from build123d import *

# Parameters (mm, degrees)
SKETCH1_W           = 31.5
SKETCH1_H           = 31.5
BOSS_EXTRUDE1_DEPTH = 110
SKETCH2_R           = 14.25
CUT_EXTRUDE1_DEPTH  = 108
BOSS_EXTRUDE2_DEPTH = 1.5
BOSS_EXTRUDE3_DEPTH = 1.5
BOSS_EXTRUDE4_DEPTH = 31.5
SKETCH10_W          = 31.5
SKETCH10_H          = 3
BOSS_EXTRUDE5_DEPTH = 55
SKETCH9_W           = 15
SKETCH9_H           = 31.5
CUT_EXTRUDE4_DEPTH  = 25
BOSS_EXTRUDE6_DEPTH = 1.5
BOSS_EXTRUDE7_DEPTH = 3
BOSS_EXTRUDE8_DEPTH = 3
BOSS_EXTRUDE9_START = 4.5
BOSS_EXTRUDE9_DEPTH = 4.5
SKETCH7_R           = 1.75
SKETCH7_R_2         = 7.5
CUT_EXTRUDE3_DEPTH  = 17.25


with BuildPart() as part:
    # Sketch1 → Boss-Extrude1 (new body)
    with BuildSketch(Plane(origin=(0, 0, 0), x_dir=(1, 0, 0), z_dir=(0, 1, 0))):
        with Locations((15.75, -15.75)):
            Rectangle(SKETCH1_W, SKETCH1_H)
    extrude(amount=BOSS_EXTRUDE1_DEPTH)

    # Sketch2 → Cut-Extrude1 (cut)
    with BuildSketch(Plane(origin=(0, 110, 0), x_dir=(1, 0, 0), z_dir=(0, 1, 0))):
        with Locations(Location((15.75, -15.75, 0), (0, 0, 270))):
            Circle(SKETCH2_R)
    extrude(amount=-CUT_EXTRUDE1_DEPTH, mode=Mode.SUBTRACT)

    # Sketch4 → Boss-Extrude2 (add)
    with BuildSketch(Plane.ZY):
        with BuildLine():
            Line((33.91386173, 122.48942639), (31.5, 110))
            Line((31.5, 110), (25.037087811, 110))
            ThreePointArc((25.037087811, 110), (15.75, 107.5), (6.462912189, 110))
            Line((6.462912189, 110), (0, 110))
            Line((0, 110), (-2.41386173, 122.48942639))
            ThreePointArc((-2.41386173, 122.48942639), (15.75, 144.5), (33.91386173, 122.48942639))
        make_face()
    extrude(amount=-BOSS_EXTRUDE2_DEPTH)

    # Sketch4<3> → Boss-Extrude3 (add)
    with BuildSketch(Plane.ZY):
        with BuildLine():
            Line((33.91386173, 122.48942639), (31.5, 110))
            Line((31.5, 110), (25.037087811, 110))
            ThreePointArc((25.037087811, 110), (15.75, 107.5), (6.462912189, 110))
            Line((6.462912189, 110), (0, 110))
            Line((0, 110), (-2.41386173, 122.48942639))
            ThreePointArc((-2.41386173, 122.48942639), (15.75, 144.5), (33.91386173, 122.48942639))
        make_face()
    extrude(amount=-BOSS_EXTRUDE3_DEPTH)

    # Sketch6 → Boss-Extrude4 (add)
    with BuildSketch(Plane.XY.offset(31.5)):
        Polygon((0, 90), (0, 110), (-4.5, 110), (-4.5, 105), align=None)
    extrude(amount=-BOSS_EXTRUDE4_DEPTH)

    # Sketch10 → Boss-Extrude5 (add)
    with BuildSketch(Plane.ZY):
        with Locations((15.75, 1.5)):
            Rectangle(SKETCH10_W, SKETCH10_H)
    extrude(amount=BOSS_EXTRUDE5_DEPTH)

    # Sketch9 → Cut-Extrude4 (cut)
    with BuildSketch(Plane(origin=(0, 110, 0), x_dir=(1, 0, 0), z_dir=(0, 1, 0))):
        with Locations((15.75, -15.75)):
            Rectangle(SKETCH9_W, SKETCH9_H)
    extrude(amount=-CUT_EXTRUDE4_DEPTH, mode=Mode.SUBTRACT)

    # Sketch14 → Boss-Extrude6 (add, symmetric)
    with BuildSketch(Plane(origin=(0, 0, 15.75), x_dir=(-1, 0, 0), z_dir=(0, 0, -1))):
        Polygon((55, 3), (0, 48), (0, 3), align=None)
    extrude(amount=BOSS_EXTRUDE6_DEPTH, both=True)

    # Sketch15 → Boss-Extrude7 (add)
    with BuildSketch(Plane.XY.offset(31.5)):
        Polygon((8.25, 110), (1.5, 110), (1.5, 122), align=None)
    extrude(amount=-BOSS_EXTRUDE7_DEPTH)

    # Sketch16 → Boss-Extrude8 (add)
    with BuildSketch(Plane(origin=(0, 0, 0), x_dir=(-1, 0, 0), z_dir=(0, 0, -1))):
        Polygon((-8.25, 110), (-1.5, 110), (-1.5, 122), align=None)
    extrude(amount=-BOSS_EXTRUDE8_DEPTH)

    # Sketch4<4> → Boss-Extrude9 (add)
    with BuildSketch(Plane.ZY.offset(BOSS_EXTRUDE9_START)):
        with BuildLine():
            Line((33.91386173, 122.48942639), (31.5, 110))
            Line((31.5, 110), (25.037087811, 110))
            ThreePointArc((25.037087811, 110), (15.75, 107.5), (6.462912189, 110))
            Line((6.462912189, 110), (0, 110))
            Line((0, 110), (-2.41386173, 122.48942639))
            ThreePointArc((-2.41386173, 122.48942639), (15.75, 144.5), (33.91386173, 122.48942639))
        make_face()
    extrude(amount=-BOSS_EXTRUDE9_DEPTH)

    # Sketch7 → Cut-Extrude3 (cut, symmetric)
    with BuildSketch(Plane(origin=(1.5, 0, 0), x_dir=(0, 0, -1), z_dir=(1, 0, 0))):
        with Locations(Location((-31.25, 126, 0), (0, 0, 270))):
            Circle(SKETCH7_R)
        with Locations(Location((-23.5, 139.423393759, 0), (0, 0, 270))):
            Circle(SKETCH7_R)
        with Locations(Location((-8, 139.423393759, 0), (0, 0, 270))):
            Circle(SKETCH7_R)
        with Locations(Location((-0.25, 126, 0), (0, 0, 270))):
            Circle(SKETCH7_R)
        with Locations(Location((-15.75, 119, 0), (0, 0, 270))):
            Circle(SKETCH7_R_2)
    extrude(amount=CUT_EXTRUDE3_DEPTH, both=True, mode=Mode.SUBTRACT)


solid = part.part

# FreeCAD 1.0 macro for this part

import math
import FreeCAD as App
import Part
import Sketcher
from FreeCAD import Vector
Q = App.Units.Quantity

doc = App.newDocument("Part")
params = doc.addObject("Spreadsheet::Sheet", "Params")
for row, (alias, value) in enumerate([
    ("sketch1_width", "31.5 mm"),
    ("pad1_length", "110 mm"),
    ("sketch2_diameter", "28.5 mm"),
    ("pocket1_length", "108 mm"),
    ("sketch3_radius", "18.5 mm"),
    ("pad2_length", "1.5 mm"),
    ("sketch4_radius", "18.5 mm"),
    ("pad3_length", "1.5 mm"),
    ("sketch5_height", "20 mm"),
    ("sketch5_height2", "5 mm"),
    ("sketch5_width", "4.5 mm"),
    ("pad4_length", "31.5 mm"),
    ("sketch6_width", "3 mm"),
    ("sketch6_height", "31.5 mm"),
    ("pad5_length", "55 mm"),
    ("sketch7_width", "15 mm"),
    ("sketch7_height", "31.5 mm"),
    ("pocket2_length", "25 mm"),
    ("sketch8_width", "55 mm"),
    ("sketch8_height", "45 mm"),
    ("pad6_length", "3 mm"),
    ("sketch9_height", "12 mm"),
    ("sketch9_width", "6.75 mm"),
    ("pad7_length", "3 mm"),
    ("sketch10_height", "12 mm"),
    ("sketch10_width", "6.75 mm"),
    ("pad8_length", "3 mm"),
    ("sketch11_radius", "18.5 mm"),
    ("pad9_length", "4.5 mm"),
    ("sketch12_diameter", "15 mm"),
    ("sketch12_diameter2", "3.5 mm"),
    ("pocket3_length", "34.5 mm"),
], start=1):
    params.set(f"A{row}", alias)
    params.set(f"B{row}", "=" + value)
    params.setAlias(f"B{row}", alias)

body = doc.addObject("PartDesign::Body", "Body")

sketch1 = doc.addObject("Sketcher::SketchObject", "Sketch")
body.addObject(sketch1)
sketch1.AttachmentSupport = (doc.XZ_Plane, [""])
sketch1.MapMode = "FlatFace"
sketch1.addGeometry([
    Part.LineSegment(Vector(0, 0, 0), Vector(0, 32, 0)),
    Part.LineSegment(Vector(0, 32, 0), Vector(32, 32, 0)),
    Part.LineSegment(Vector(32, 32, 0), Vector(32, 0, 0)),
    Part.LineSegment(Vector(32, 0, 0), Vector(0, 0, 0)),
], False)
sketch1.addConstraint([
    Sketcher.Constraint("Coincident", 0, 2, 1, 1),
    Sketcher.Constraint("Coincident", 1, 2, 2, 1),
    Sketcher.Constraint("Coincident", 2, 2, 3, 1),
    Sketcher.Constraint("Coincident", 3, 2, 0, 1),
    Sketcher.Constraint("Vertical", 0),
    Sketcher.Constraint("Horizontal", 1),
    Sketcher.Constraint("Vertical", 2),
    Sketcher.Constraint("Horizontal", 3),
    Sketcher.Constraint("Coincident", 3, 2, -1, 1),
    Sketcher.Constraint("Equal", 3, 0),
    Sketcher.Constraint("DistanceX", 1, 1, 1, 2, Q("31.5 mm")),
])
sketch1.setExpression("Constraints[10]", "Params.sketch1_width")
pad1 = doc.addObject("PartDesign::Pad", "Pad")
body.addObject(pad1)
pad1.Profile = sketch1
pad1.setExpression("Length", "Params.pad1_length")
pad1.Reversed = True

sketch2 = doc.addObject("Sketcher::SketchObject", "Sketch001")
body.addObject(sketch2)
sketch2.AttachmentSupport = (doc.XZ_Plane, [""])
sketch2.MapMode = "FlatFace"
sketch2.AttachmentOffset = App.Placement(Vector(0, 0, -110), App.Rotation())
sketch2.addGeometry(Part.Circle(Vector(16, 16, 0), Vector(0, 0, 1), 14), False)
sketch2.addConstraint([
    Sketcher.Constraint("Diameter", 0, Q("28.5 mm")),
    Sketcher.Constraint("DistanceX", -1, 1, 0, 3, Q("15.75 mm")),
    Sketcher.Constraint("DistanceY", -1, 1, 0, 3, Q("15.75 mm")),
])
sketch2.setExpression("Constraints[0]", "Params.sketch2_diameter")
pocket1 = doc.addObject("PartDesign::Pocket", "Pocket")
body.addObject(pocket1)
pocket1.Profile = sketch2
pocket1.setExpression("Length", "Params.pocket1_length")
pocket1.Reversed = True

sketch3 = doc.addObject("Sketcher::SketchObject", "Sketch002")
body.addObject(sketch3)
sketch3.AttachmentSupport = (doc.YZ_Plane, [""])
sketch3.MapMode = "FlatFace"
sketch3.addGeometry([
    Part.LineSegment(Vector(110, 32, 0), Vector(122, 34, 0)),
    Part.ArcOfCircle(Part.Circle(Vector(126, 16, 0), Vector(0, 0, 1), 18), math.radians(-101), math.radians(101)),
    Part.LineSegment(Vector(122, -2, 0), Vector(110, 0, 0)),
    Part.LineSegment(Vector(110, 0, 0), Vector(110, 6, 0)),
    Part.ArcOfCircle(Part.Circle(Vector(126, 16, 0), Vector(0, 0, 1), 19), math.radians(150), math.radians(210)),
    Part.LineSegment(Vector(110, 25, 0), Vector(110, 32, 0)),
], False)
sketch3.addConstraint([
    Sketcher.Constraint("Tangent", 0, 2, 1, 2),
    Sketcher.Constraint("Tangent", 1, 1, 2, 1),
    Sketcher.Constraint("Coincident", 2, 2, 3, 1),
    Sketcher.Constraint("Coincident", 3, 2, 4, 2),
    Sketcher.Constraint("Coincident", 4, 1, 5, 1),
    Sketcher.Constraint("Coincident", 5, 2, 0, 1),
    Sketcher.Constraint("Vertical", 3),
    Sketcher.Constraint("Vertical", 5),
    Sketcher.Constraint("Coincident", 4, 3, 1, 3),
    Sketcher.Constraint("Equal", 1, 4),
    Sketcher.Constraint("PointOnObject", 2, 2, -1),
    Sketcher.Constraint("Vertical", 0, 2, 1, 1),
    Sketcher.Constraint("Vertical", 3, 2, 4, 1),
    Sketcher.Constraint("Radius", 1, Q("18.5 mm")),
    Sketcher.Constraint("DistanceX", -1, 1, 1, 3, Q("126 mm")),
    Sketcher.Constraint("DistanceX", -1, 1, 2, 2, Q("110 mm")),
    Sketcher.Constraint("DistanceY", -1, 1, 5, 2, Q("31.5 mm")),
])
sketch3.setExpression("Constraints[13]", "Params.sketch3_radius")
pad2 = doc.addObject("PartDesign::Pad", "Pad001")
body.addObject(pad2)
pad2.Profile = sketch3
pad2.setExpression("Length", "Params.pad2_length")

sketch4 = doc.addObject("Sketcher::SketchObject", "Sketch003")
body.addObject(sketch4)
sketch4.AttachmentSupport = (doc.YZ_Plane, [""])
sketch4.MapMode = "FlatFace"
sketch4.addGeometry([
    Part.LineSegment(Vector(110, 32, 0), Vector(122, 34, 0)),
    Part.ArcOfCircle(Part.Circle(Vector(126, 16, 0), Vector(0, 0, 1), 18), math.radians(-101), math.radians(101)),
    Part.LineSegment(Vector(122, -2, 0), Vector(110, 0, 0)),
    Part.LineSegment(Vector(110, 0, 0), Vector(110, 6, 0)),
    Part.ArcOfCircle(Part.Circle(Vector(126, 16, 0), Vector(0, 0, 1), 19), math.radians(150), math.radians(210)),
    Part.LineSegment(Vector(110, 25, 0), Vector(110, 32, 0)),
], False)
sketch4.addConstraint([
    Sketcher.Constraint("Tangent", 0, 2, 1, 2),
    Sketcher.Constraint("Tangent", 1, 1, 2, 1),
    Sketcher.Constraint("Coincident", 2, 2, 3, 1),
    Sketcher.Constraint("Coincident", 3, 2, 4, 2),
    Sketcher.Constraint("Coincident", 4, 1, 5, 1),
    Sketcher.Constraint("Coincident", 5, 2, 0, 1),
    Sketcher.Constraint("Vertical", 3),
    Sketcher.Constraint("Vertical", 5),
    Sketcher.Constraint("Coincident", 4, 3, 1, 3),
    Sketcher.Constraint("Equal", 1, 4),
    Sketcher.Constraint("PointOnObject", 2, 2, -1),
    Sketcher.Constraint("Vertical", 0, 2, 1, 1),
    Sketcher.Constraint("Vertical", 3, 2, 4, 1),
    Sketcher.Constraint("Radius", 1, Q("18.5 mm")),
    Sketcher.Constraint("DistanceX", -1, 1, 1, 3, Q("126 mm")),
    Sketcher.Constraint("DistanceX", -1, 1, 2, 2, Q("110 mm")),
    Sketcher.Constraint("DistanceY", -1, 1, 5, 2, Q("31.5 mm")),
])
sketch4.setExpression("Constraints[13]", "Params.sketch4_radius")
pad3 = doc.addObject("PartDesign::Pad", "Pad002")
body.addObject(pad3)
pad3.Profile = sketch4
pad3.setExpression("Length", "Params.pad3_length")

sketch5 = doc.addObject("Sketcher::SketchObject", "Sketch004")
body.addObject(sketch5)
sketch5.AttachmentSupport = (doc.XY_Plane, [""])
sketch5.MapMode = "FlatFace"
sketch5.AttachmentOffset = App.Placement(Vector(0, 0, 31.5), App.Rotation())
sketch5.addGeometry([
    Part.LineSegment(Vector(0, 90, 0), Vector(0, 110, 0)),
    Part.LineSegment(Vector(0, 110, 0), Vector(-4.5, 110, 0)),
    Part.LineSegment(Vector(-4.5, 110, 0), Vector(-4.5, 105, 0)),
    Part.LineSegment(Vector(-4.5, 105, 0), Vector(0, 90, 0)),
], False)
sketch5.addConstraint([
    Sketcher.Constraint("Coincident", 0, 2, 1, 1),
    Sketcher.Constraint("Coincident", 1, 2, 2, 1),
    Sketcher.Constraint("Coincident", 2, 2, 3, 1),
    Sketcher.Constraint("Coincident", 3, 2, 0, 1),
    Sketcher.Constraint("Vertical", 0),
    Sketcher.Constraint("Horizontal", 1),
    Sketcher.Constraint("Vertical", 2),
    Sketcher.Constraint("PointOnObject", 0, 2, -2),
    Sketcher.Constraint("DistanceY", 0, 1, 0, 2, Q("20 mm")),
    Sketcher.Constraint("DistanceY", 2, 2, 2, 1, Q("5 mm")),
    Sketcher.Constraint("DistanceX", 1, 2, 1, 1, Q("4.5 mm")),
    Sketcher.Constraint("DistanceY", -1, 1, 0, 2, Q("110 mm")),
])
sketch5.setExpression("Constraints[8]", "Params.sketch5_height")
sketch5.setExpression("Constraints[9]", "Params.sketch5_height2")
sketch5.setExpression("Constraints[10]", "Params.sketch5_width")
pad4 = doc.addObject("PartDesign::Pad", "Pad003")
body.addObject(pad4)
pad4.Profile = sketch5
pad4.setExpression("Length", "Params.pad4_length")
pad4.Reversed = True

sketch6 = doc.addObject("Sketcher::SketchObject", "Sketch005")
body.addObject(sketch6)
sketch6.AttachmentSupport = (doc.YZ_Plane, [""])
sketch6.MapMode = "FlatFace"
sketch6.addGeometry([
    Part.LineSegment(Vector(3, 0, 0), Vector(0, 0, 0)),
    Part.LineSegment(Vector(0, 0, 0), Vector(0, 31.5, 0)),
    Part.LineSegment(Vector(0, 31.5, 0), Vector(3, 31.5, 0)),
    Part.LineSegment(Vector(3, 31.5, 0), Vector(3, 0, 0)),
], False)
sketch6.addConstraint([
    Sketcher.Constraint("Coincident", 0, 2, 1, 1),
    Sketcher.Constraint("Coincident", 1, 2, 2, 1),
    Sketcher.Constraint("Coincident", 2, 2, 3, 1),
    Sketcher.Constraint("Coincident", 3, 2, 0, 1),
    Sketcher.Constraint("Horizontal", 0),
    Sketcher.Constraint("Vertical", 1),
    Sketcher.Constraint("Horizontal", 2),
    Sketcher.Constraint("Vertical", 3),
    Sketcher.Constraint("Coincident", 0, 2, -1, 1),
    Sketcher.Constraint("DistanceX", 0, 2, 0, 1, Q("3 mm")),
    Sketcher.Constraint("DistanceY", 1, 1, 1, 2, Q("31.5 mm")),
])
sketch6.setExpression("Constraints[9]", "Params.sketch6_width")
sketch6.setExpression("Constraints[10]", "Params.sketch6_height")
pad5 = doc.addObject("PartDesign::Pad", "Pad004")
body.addObject(pad5)
pad5.Profile = sketch6
pad5.setExpression("Length", "Params.pad5_length")
pad5.Reversed = True

sketch7 = doc.addObject("Sketcher::SketchObject", "Sketch006")
body.addObject(sketch7)
sketch7.AttachmentSupport = (doc.XZ_Plane, [""])
sketch7.MapMode = "FlatFace"
sketch7.AttachmentOffset = App.Placement(Vector(0, 0, -110), App.Rotation())
sketch7.addGeometry([
    Part.LineSegment(Vector(8, 0, 0), Vector(8, 32, 0)),
    Part.LineSegment(Vector(8, 32, 0), Vector(23, 32, 0)),
    Part.LineSegment(Vector(23, 32, 0), Vector(23, 0, 0)),
    Part.LineSegment(Vector(23, 0, 0), Vector(8, 0, 0)),
], False)
sketch7.addConstraint([
    Sketcher.Constraint("Coincident", 0, 2, 1, 1),
    Sketcher.Constraint("Coincident", 1, 2, 2, 1),
    Sketcher.Constraint("Coincident", 2, 2, 3, 1),
    Sketcher.Constraint("Coincident", 3, 2, 0, 1),
    Sketcher.Constraint("Vertical", 0),
    Sketcher.Constraint("Horizontal", 1),
    Sketcher.Constraint("Vertical", 2),
    Sketcher.Constraint("Horizontal", 3),
    Sketcher.Constraint("PointOnObject", 2, 2, -1),
    Sketcher.Constraint("DistanceX", 1, 1, 1, 2, Q("15 mm")),
    Sketcher.Constraint("DistanceY", 0, 1, 0, 2, Q("31.5 mm")),
    Sketcher.Constraint("DistanceX", -1, 1, 0, 2, Q("8.25 mm")),
])
sketch7.setExpression("Constraints[9]", "Params.sketch7_width")
sketch7.setExpression("Constraints[10]", "Params.sketch7_height")
pocket2 = doc.addObject("PartDesign::Pocket", "Pocket001")
body.addObject(pocket2)
pocket2.Profile = sketch7
pocket2.setExpression("Length", "Params.pocket2_length")
pocket2.Reversed = True

sketch8 = doc.addObject("Sketcher::SketchObject", "Sketch007")
body.addObject(sketch8)
sketch8.AttachmentSupport = (doc.XY_Plane, [""])
sketch8.MapMode = "FlatFace"
sketch8.AttachmentOffset = App.Placement(Vector(0, 0, 15.75), App.Rotation())
sketch8.addGeometry([
    Part.LineSegment(Vector(-55, 3, 0), Vector(0, 48, 0)),
    Part.LineSegment(Vector(0, 48, 0), Vector(0, 3, 0)),
    Part.LineSegment(Vector(0, 3, 0), Vector(-55, 3, 0)),
], False)
sketch8.addConstraint([
    Sketcher.Constraint("Coincident", 0, 2, 1, 1),
    Sketcher.Constraint("Coincident", 1, 2, 2, 1),
    Sketcher.Constraint("Coincident", 2, 2, 0, 1),
    Sketcher.Constraint("Vertical", 1),
    Sketcher.Constraint("Horizontal", 2),
    Sketcher.Constraint("PointOnObject", 0, 2, -2),
    Sketcher.Constraint("DistanceX", 2, 2, 2, 1, Q("55 mm")),
    Sketcher.Constraint("DistanceY", 1, 2, 1, 1, Q("45 mm")),
    Sketcher.Constraint("DistanceY", -1, 1, 0, 2, Q("48 mm")),
])
sketch8.setExpression("Constraints[6]", "Params.sketch8_width")
sketch8.setExpression("Constraints[7]", "Params.sketch8_height")
pad6 = doc.addObject("PartDesign::Pad", "Pad005")
body.addObject(pad6)
pad6.Profile = sketch8
pad6.setExpression("Length", "Params.pad6_length")
pad6.Midplane = True

sketch9 = doc.addObject("Sketcher::SketchObject", "Sketch008")
body.addObject(sketch9)
sketch9.AttachmentSupport = (doc.XY_Plane, [""])
sketch9.MapMode = "FlatFace"
sketch9.AttachmentOffset = App.Placement(Vector(0, 0, 31.5), App.Rotation())
sketch9.addGeometry([
    Part.LineSegment(Vector(2, 110, 0), Vector(8, 110, 0)),
    Part.LineSegment(Vector(8, 110, 0), Vector(2, 122, 0)),
    Part.LineSegment(Vector(2, 122, 0), Vector(2, 110, 0)),
], False)
sketch9.addConstraint([
    Sketcher.Constraint("Coincident", 0, 2, 1, 1),
    Sketcher.Constraint("Coincident", 1, 2, 2, 1),
    Sketcher.Constraint("Coincident", 2, 2, 0, 1),
    Sketcher.Constraint("Horizontal", 0),
    Sketcher.Constraint("Vertical", 2),
    Sketcher.Constraint("DistanceY", 2, 2, 2, 1, Q("12 mm")),
    Sketcher.Constraint("DistanceY", -1, 1, 0, 2, Q("110 mm")),
    Sketcher.Constraint("DistanceX", 0, 1, 0, 2, Q("6.75 mm")),
    Sketcher.Constraint("DistanceX", -1, 1, 1, 2, Q("1.5 mm")),
])
sketch9.setExpression("Constraints[5]", "Params.sketch9_height")
sketch9.setExpression("Constraints[7]", "Params.sketch9_width")
pad7 = doc.addObject("PartDesign::Pad", "Pad006")
body.addObject(pad7)
pad7.Profile = sketch9
pad7.setExpression("Length", "Params.pad7_length")
pad7.Reversed = True

sketch10 = doc.addObject("Sketcher::SketchObject", "Sketch009")
body.addObject(sketch10)
sketch10.AttachmentSupport = (doc.XY_Plane, [""])
sketch10.MapMode = "FlatFace"
sketch10.addGeometry([
    Part.LineSegment(Vector(8, 110, 0), Vector(2, 110, 0)),
    Part.LineSegment(Vector(2, 110, 0), Vector(2, 122, 0)),
    Part.LineSegment(Vector(2, 122, 0), Vector(8, 110, 0)),
], False)
sketch10.addConstraint([
    Sketcher.Constraint("Coincident", 0, 2, 1, 1),
    Sketcher.Constraint("Coincident", 1, 2, 2, 1),
    Sketcher.Constraint("Coincident", 2, 2, 0, 1),
    Sketcher.Constraint("Horizontal", 0),
    Sketcher.Constraint("Vertical", 1),
    Sketcher.Constraint("DistanceY", 1, 1, 1, 2, Q("12 mm")),
    Sketcher.Constraint("DistanceY", -1, 1, 0, 2, Q("110 mm")),
    Sketcher.Constraint("DistanceX", 0, 2, 0, 1, Q("6.75 mm")),
    Sketcher.Constraint("DistanceX", -1, 1, 0, 2, Q("1.5 mm")),
])
sketch10.setExpression("Constraints[5]", "Params.sketch10_height")
sketch10.setExpression("Constraints[7]", "Params.sketch10_width")
pad8 = doc.addObject("PartDesign::Pad", "Pad007")
body.addObject(pad8)
pad8.Profile = sketch10
pad8.setExpression("Length", "Params.pad8_length")

sketch11 = doc.addObject("Sketcher::SketchObject", "Sketch010")
body.addObject(sketch11)
sketch11.AttachmentSupport = (doc.YZ_Plane, [""])
sketch11.MapMode = "FlatFace"
sketch11.AttachmentOffset = App.Placement(Vector(0, 0, -4.5), App.Rotation())
sketch11.addGeometry([
    Part.LineSegment(Vector(110, 32, 0), Vector(122, 34, 0)),
    Part.ArcOfCircle(Part.Circle(Vector(126, 16, 0), Vector(0, 0, 1), 18), math.radians(-101), math.radians(101)),
    Part.LineSegment(Vector(122, -2, 0), Vector(110, 0, 0)),
    Part.LineSegment(Vector(110, 0, 0), Vector(110, 6, 0)),
    Part.ArcOfCircle(Part.Circle(Vector(126, 16, 0), Vector(0, 0, 1), 19), math.radians(150), math.radians(210)),
    Part.LineSegment(Vector(110, 25, 0), Vector(110, 32, 0)),
], False)
sketch11.addConstraint([
    Sketcher.Constraint("Tangent", 0, 2, 1, 2),
    Sketcher.Constraint("Tangent", 1, 1, 2, 1),
    Sketcher.Constraint("Coincident", 2, 2, 3, 1),
    Sketcher.Constraint("Coincident", 3, 2, 4, 2),
    Sketcher.Constraint("Coincident", 4, 1, 5, 1),
    Sketcher.Constraint("Coincident", 5, 2, 0, 1),
    Sketcher.Constraint("Vertical", 3),
    Sketcher.Constraint("Vertical", 5),
    Sketcher.Constraint("Coincident", 4, 3, 1, 3),
    Sketcher.Constraint("Equal", 1, 4),
    Sketcher.Constraint("PointOnObject", 2, 2, -1),
    Sketcher.Constraint("Vertical", 0, 2, 1, 1),
    Sketcher.Constraint("Vertical", 3, 2, 4, 1),
    Sketcher.Constraint("Radius", 1, Q("18.5 mm")),
    Sketcher.Constraint("DistanceX", -1, 1, 1, 3, Q("126 mm")),
    Sketcher.Constraint("DistanceX", -1, 1, 2, 2, Q("110 mm")),
    Sketcher.Constraint("DistanceY", -1, 1, 5, 2, Q("31.5 mm")),
])
sketch11.setExpression("Constraints[13]", "Params.sketch11_radius")
pad9 = doc.addObject("PartDesign::Pad", "Pad008")
body.addObject(pad9)
pad9.Profile = sketch11
pad9.setExpression("Length", "Params.pad9_length")

sketch12 = doc.addObject("Sketcher::SketchObject", "Sketch011")
body.addObject(sketch12)
sketch12.AttachmentSupport = (doc.YZ_Plane, [""])
sketch12.MapMode = "FlatFace"
sketch12.AttachmentOffset = App.Placement(Vector(0, 0, 1.5), App.Rotation())
sketch12.addGeometry([
    Part.Circle(Vector(126, 31.2, 0), Vector(0, 0, 1), 1.8),
    Part.Circle(Vector(139.4, 23.5, 0), Vector(0, 0, 1), 1.8),
    Part.Circle(Vector(139.4, 8, 0), Vector(0, 0, 1), 1.8),
    Part.Circle(Vector(126, 0.2, 0), Vector(0, 0, 1), 1.8),
    Part.Circle(Vector(119, 15.8, 0), Vector(0, 0, 1), 7.5),
], False)
sketch12.addConstraint([
    Sketcher.Constraint("Equal", 0, 1),
    Sketcher.Constraint("Equal", 1, 2),
    Sketcher.Constraint("Equal", 2, 3),
    Sketcher.Constraint("Vertical", 1, 3, 2, 3),
    Sketcher.Constraint("Vertical", 0, 3, 3, 3),
    Sketcher.Constraint("Diameter", 4, Q("15 mm")),
    Sketcher.Constraint("Diameter", 0, Q("3.5 mm")),
    Sketcher.Constraint("DistanceX", -1, 1, 0, 3, Q("126 mm")),
    Sketcher.Constraint("DistanceY", -1, 1, 2, 3, Q("8 mm")),
    Sketcher.Constraint("DistanceX", -1, 1, 4, 3, Q("119 mm")),
    Sketcher.Constraint("DistanceY", 3, 3, 0, 3, Q("31 mm")),
    Sketcher.Constraint("DistanceY", -1, 1, 1, 3, Q("23.5 mm")),
    Sketcher.Constraint("DistanceY", 4, 3, 0, 3, Q("15.5 mm")),
    Sketcher.Constraint("DistanceY", -1, 1, 0, 3, Q("31.25 mm")),
    Sketcher.Constraint("DistanceX", -1, 1, 1, 3, Q("139.423394 mm")),
])
sketch12.setExpression("Constraints[5]", "Params.sketch12_diameter")
sketch12.setExpression("Constraints[6]", "Params.sketch12_diameter2")
pocket3 = doc.addObject("PartDesign::Pocket", "Pocket002")
body.addObject(pocket3)
pocket3.Profile = sketch12
pocket3.setExpression("Length", "Params.pocket3_length")
pocket3.Midplane = True

doc.recompute()
